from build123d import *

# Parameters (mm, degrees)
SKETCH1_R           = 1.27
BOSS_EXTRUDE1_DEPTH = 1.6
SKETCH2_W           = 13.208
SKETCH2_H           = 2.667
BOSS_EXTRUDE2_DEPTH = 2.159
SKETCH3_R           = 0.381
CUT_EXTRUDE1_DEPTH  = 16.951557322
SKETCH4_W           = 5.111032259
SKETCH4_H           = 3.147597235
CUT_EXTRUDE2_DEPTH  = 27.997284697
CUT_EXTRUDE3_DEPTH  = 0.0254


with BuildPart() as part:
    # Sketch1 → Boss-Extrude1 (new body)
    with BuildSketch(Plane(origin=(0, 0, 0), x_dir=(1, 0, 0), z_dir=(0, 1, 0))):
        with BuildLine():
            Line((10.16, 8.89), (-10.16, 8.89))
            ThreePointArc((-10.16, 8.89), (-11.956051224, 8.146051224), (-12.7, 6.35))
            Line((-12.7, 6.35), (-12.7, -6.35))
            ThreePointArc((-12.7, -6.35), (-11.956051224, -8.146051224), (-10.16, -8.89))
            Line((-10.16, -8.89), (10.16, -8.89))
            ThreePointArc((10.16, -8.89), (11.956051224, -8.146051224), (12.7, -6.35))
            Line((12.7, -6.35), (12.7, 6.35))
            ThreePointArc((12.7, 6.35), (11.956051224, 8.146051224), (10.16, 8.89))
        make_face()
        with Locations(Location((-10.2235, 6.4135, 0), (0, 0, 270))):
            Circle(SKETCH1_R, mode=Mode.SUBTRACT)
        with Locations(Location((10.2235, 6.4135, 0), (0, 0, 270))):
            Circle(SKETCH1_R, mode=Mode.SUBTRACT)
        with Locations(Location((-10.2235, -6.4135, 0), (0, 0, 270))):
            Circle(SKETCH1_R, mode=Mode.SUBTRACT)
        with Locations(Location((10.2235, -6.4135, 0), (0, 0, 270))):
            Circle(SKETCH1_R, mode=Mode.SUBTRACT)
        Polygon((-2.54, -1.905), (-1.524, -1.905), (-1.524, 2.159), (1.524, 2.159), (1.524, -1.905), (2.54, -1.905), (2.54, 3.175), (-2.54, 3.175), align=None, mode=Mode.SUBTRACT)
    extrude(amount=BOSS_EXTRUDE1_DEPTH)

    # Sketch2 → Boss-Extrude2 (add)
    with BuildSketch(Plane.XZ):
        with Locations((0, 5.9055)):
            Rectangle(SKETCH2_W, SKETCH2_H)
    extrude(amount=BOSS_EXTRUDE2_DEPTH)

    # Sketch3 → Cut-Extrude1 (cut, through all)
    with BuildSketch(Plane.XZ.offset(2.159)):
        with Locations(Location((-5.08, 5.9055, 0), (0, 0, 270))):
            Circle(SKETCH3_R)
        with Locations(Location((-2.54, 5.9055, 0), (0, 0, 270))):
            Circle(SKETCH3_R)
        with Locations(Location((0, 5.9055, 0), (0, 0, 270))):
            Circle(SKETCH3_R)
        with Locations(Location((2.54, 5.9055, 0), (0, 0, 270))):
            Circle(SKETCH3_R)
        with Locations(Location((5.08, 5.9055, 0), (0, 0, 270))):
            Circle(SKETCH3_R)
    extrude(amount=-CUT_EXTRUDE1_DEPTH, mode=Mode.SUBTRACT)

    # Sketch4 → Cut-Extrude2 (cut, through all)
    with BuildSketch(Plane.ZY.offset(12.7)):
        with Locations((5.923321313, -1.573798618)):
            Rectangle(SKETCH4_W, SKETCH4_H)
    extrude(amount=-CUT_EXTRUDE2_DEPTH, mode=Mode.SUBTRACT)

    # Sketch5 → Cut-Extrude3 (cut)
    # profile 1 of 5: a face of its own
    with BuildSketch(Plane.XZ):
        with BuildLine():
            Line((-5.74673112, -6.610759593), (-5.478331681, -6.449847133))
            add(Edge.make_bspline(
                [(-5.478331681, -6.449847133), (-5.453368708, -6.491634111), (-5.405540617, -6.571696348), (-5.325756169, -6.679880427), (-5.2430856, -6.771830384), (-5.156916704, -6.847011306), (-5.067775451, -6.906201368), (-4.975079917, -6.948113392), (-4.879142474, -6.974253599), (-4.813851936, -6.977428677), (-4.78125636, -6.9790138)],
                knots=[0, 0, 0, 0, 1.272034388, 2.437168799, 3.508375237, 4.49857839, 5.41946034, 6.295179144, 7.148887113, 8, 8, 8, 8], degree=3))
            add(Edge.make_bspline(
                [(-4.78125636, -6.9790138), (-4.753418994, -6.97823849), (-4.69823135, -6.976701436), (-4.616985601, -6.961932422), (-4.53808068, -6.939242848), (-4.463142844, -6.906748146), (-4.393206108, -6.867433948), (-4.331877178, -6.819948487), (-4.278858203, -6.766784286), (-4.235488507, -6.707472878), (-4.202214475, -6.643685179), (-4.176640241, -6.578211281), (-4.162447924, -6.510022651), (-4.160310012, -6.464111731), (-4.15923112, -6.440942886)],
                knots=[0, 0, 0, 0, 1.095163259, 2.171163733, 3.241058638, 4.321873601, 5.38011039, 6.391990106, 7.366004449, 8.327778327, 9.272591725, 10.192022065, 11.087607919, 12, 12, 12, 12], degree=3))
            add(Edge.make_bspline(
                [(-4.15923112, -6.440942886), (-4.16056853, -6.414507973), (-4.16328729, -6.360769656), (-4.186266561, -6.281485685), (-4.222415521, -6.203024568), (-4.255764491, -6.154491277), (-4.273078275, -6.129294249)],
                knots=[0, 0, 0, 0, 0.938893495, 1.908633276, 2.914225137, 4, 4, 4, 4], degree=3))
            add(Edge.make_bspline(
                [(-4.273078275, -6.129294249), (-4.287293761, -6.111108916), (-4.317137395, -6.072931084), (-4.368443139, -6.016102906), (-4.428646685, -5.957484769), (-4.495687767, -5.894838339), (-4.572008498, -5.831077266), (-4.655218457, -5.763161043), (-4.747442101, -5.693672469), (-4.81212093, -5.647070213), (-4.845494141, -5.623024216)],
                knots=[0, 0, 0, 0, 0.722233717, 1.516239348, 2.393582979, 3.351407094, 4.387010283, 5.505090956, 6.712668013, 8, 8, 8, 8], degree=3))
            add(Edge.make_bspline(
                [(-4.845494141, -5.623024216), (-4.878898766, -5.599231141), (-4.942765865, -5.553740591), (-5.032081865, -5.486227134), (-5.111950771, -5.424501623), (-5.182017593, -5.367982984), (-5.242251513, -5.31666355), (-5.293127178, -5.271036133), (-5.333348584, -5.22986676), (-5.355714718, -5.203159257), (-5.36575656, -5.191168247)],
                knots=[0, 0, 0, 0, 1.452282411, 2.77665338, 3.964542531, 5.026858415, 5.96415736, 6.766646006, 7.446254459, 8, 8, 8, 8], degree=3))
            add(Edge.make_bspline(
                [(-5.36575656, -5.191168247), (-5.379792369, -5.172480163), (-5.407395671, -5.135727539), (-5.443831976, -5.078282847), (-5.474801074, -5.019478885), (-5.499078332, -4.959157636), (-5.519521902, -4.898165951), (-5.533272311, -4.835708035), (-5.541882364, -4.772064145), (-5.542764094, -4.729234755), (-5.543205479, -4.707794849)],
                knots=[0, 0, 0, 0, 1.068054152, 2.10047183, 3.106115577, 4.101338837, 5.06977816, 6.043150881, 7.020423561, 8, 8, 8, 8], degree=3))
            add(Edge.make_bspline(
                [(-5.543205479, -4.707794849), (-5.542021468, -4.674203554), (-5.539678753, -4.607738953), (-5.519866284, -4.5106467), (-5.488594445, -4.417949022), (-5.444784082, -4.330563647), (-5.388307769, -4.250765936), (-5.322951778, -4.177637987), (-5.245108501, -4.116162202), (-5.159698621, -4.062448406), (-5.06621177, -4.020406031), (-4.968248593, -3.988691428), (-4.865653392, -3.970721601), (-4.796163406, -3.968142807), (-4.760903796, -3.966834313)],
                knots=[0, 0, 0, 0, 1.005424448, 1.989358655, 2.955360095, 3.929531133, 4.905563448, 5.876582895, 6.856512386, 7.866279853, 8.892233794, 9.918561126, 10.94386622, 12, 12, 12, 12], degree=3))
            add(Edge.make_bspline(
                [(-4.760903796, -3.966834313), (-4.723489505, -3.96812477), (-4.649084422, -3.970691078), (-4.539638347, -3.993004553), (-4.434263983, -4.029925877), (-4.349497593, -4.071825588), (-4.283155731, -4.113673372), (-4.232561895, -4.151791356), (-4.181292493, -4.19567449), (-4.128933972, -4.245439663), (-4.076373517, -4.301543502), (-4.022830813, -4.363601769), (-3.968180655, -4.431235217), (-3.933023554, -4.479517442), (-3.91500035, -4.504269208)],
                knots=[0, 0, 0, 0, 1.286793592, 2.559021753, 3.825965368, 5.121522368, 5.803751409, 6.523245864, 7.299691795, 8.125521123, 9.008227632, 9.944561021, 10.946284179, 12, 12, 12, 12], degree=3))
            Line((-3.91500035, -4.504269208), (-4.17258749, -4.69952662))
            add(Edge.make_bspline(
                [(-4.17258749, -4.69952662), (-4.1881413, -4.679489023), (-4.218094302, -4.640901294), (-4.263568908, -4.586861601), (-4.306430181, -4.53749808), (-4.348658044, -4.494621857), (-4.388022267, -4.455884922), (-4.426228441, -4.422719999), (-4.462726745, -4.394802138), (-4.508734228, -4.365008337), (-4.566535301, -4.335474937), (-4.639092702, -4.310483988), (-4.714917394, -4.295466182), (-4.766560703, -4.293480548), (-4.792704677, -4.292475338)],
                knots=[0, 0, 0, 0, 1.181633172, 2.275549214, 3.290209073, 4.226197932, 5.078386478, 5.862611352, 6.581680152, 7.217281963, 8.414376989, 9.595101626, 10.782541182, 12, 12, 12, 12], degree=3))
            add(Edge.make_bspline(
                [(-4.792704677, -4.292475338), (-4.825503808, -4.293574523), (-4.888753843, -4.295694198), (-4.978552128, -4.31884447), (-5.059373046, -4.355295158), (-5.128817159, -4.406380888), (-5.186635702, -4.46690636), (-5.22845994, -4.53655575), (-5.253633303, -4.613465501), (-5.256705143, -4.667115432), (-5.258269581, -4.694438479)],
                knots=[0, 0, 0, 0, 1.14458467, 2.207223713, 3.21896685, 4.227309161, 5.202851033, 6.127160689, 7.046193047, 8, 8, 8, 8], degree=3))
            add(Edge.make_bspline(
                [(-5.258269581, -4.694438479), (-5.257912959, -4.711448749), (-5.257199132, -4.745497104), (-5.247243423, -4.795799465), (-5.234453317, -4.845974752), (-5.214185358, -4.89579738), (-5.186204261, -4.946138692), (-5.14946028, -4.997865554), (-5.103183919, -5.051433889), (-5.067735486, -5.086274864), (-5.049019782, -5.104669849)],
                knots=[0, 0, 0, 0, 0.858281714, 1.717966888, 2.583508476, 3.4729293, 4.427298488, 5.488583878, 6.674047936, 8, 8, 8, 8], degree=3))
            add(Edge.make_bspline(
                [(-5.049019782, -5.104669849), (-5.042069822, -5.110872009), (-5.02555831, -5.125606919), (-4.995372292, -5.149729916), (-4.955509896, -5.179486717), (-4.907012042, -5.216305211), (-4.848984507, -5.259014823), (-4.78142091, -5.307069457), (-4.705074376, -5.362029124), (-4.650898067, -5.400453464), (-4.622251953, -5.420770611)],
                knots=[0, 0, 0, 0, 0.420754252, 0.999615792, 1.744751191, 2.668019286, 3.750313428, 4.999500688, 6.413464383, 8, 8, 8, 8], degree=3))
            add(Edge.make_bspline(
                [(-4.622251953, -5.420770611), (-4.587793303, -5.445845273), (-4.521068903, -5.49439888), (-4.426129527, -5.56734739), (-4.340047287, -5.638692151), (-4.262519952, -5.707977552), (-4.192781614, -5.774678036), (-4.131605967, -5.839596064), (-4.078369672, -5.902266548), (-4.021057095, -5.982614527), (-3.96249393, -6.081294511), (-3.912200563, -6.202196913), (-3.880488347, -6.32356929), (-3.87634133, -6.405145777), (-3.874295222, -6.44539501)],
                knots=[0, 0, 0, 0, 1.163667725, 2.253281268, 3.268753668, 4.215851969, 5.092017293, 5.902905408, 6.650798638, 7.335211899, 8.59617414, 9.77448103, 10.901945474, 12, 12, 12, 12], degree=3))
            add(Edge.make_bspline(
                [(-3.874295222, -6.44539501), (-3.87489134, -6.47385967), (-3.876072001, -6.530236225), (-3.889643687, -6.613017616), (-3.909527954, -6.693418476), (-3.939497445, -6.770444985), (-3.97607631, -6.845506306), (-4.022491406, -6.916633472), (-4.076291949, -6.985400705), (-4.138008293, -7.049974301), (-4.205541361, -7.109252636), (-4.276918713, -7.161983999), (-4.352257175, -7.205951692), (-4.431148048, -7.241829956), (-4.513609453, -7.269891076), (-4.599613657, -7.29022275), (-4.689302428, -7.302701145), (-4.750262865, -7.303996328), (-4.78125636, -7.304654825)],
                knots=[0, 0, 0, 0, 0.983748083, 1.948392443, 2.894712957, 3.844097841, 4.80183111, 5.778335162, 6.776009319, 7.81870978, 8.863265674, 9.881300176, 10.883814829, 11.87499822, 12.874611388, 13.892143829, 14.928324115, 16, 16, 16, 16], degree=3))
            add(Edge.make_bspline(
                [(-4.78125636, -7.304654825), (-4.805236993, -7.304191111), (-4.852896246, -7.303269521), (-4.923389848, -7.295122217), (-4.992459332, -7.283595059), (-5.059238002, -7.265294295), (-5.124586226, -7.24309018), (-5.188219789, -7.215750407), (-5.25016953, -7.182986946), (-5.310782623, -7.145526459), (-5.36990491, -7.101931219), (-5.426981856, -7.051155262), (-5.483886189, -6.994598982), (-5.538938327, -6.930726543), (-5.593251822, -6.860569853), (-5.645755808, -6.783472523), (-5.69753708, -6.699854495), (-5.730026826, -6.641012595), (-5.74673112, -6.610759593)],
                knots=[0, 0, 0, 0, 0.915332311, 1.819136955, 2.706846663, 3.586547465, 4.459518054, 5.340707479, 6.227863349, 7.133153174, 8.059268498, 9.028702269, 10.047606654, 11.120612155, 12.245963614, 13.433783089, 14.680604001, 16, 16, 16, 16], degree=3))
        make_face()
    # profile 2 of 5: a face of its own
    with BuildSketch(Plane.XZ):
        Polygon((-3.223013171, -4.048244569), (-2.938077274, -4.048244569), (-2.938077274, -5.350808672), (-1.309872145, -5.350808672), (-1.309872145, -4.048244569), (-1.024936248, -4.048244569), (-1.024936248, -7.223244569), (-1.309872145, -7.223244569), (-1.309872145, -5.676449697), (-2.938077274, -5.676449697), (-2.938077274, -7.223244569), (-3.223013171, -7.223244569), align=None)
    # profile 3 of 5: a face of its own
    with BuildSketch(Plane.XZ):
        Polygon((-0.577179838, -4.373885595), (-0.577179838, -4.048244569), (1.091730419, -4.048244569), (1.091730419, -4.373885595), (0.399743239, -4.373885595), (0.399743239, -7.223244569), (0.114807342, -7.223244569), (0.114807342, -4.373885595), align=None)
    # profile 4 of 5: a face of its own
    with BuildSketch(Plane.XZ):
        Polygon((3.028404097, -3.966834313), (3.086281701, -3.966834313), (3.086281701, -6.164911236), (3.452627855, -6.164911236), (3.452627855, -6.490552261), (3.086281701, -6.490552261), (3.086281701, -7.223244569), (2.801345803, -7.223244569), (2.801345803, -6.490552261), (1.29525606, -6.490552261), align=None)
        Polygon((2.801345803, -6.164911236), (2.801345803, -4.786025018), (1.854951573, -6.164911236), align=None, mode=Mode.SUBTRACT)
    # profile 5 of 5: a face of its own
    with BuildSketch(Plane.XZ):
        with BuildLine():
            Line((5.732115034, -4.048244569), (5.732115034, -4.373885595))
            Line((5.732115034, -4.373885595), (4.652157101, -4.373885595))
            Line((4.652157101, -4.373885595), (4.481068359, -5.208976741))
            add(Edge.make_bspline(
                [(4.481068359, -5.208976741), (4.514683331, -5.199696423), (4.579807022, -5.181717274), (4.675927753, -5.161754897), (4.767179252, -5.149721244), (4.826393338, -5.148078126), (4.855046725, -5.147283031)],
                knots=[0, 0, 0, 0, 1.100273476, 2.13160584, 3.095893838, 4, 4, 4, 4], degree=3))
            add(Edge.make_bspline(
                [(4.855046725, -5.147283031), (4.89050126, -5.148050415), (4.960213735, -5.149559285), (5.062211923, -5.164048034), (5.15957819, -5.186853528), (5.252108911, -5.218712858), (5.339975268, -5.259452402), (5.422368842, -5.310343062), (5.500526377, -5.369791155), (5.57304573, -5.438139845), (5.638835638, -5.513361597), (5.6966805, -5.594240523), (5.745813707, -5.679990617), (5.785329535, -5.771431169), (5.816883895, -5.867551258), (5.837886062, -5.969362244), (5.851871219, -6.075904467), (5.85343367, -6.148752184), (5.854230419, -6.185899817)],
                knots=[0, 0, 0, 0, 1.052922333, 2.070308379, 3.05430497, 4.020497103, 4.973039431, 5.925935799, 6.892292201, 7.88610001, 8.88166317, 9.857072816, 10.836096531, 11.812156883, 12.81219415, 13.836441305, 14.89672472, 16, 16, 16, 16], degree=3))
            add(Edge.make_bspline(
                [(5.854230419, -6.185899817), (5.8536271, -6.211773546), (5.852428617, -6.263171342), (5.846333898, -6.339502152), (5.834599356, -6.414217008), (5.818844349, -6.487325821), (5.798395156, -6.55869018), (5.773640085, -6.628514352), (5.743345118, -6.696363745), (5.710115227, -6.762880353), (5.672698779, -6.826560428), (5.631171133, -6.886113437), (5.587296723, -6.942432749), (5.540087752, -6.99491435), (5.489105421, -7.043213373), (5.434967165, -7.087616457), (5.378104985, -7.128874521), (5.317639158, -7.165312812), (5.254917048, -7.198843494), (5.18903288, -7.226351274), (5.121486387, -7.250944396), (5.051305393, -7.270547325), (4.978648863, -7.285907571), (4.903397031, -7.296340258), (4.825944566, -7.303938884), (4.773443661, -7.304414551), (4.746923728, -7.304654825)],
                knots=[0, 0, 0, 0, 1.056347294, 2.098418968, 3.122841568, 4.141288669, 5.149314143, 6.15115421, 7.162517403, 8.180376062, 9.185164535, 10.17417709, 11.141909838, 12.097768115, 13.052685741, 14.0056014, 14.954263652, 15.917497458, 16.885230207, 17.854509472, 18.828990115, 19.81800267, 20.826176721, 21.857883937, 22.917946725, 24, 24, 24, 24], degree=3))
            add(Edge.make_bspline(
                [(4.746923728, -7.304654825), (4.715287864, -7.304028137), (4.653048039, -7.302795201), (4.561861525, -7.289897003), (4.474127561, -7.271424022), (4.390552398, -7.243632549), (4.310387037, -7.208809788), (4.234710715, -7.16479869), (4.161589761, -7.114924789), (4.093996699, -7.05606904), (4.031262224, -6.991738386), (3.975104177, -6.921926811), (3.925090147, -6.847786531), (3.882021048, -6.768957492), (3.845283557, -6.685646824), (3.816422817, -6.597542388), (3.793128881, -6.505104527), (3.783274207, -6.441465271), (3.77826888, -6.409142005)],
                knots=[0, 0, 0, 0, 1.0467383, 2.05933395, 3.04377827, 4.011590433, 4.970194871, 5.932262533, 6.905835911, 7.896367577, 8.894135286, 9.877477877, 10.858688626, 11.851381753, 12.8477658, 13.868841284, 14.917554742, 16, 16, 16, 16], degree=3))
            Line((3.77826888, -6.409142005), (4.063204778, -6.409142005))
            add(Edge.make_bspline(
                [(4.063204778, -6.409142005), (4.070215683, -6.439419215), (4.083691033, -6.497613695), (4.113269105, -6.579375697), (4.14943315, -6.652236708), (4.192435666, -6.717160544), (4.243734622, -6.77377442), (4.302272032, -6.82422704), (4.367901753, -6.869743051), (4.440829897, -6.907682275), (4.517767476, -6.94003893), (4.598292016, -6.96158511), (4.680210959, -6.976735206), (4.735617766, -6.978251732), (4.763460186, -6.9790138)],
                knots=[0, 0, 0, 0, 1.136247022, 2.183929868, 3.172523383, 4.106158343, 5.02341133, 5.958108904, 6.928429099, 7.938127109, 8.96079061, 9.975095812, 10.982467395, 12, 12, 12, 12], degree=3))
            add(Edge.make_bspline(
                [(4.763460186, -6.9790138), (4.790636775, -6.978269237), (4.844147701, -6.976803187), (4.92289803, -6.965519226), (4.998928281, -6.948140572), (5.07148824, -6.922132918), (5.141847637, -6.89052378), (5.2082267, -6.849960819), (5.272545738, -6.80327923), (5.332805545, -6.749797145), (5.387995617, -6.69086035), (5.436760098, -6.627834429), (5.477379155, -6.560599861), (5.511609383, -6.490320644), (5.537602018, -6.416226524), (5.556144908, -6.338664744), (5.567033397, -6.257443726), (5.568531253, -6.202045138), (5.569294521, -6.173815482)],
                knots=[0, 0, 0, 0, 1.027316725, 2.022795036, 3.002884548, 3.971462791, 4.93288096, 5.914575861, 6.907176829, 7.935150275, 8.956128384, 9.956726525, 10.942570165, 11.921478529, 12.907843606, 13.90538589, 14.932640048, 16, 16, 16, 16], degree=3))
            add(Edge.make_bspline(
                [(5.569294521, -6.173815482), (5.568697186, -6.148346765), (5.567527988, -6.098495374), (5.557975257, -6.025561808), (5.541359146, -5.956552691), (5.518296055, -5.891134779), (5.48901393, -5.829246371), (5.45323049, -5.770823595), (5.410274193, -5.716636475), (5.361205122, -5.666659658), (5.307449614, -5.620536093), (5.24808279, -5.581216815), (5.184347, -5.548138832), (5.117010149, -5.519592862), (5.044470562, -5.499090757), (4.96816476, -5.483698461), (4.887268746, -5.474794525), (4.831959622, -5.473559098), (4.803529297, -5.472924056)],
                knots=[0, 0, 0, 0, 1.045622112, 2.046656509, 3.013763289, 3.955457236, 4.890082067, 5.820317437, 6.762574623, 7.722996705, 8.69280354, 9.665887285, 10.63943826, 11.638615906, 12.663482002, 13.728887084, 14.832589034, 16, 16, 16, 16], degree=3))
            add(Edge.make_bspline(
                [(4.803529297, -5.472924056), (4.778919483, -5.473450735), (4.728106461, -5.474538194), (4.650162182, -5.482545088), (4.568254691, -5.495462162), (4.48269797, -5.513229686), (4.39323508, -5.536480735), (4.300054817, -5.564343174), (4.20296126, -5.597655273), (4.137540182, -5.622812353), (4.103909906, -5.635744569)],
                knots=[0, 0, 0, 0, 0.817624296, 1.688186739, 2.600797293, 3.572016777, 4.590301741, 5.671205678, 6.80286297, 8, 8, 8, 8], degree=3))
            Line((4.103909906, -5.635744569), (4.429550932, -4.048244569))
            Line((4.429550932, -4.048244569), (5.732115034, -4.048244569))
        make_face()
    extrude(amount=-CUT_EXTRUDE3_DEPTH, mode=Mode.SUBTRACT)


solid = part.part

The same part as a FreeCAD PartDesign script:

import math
import FreeCAD as App
import Part
import Sketcher

V = App.Vector
Q = App.Units.Quantity

doc = App.newDocument("Part")
body = doc.addObject("PartDesign::Body", "Body")

# Sketch on XZ plane
sketch1 = body.newObject("Sketcher::SketchObject", "Sketch")
sketch1.AttachmentSupport = (doc.getObject("XZ_Plane"), [""])
sketch1.MapMode = "FlatFace"
sketch1.addGeometry([
    Part.LineSegment(V(10.16, -8.89, 0), V(-10.16, -8.89, 0)),  # 0
    Part.ArcOfCircle(Part.Circle(V(-10.16, -6.35, 0), V(0, 0, 1), 2.54), math.radians(-180), math.radians(-90)),  # 1
    Part.LineSegment(V(-12.7, -6.35, 0), V(-12.7, 6.35, 0)),  # 2
    Part.ArcOfCircle(Part.Circle(V(-10.16, 6.35, 0), V(0, 0, 1), 2.54), math.radians(90), math.radians(180)),  # 3
    Part.LineSegment(V(-10.16, 8.89, 0), V(10.16, 8.89, 0)),  # 4
    Part.ArcOfCircle(Part.Circle(V(10.16, 6.35, 0), V(0, 0, 1), 2.54), math.radians(0), math.radians(90)),  # 5
    Part.LineSegment(V(12.7, 6.35, 0), V(12.7, -6.35, 0)),  # 6
    Part.ArcOfCircle(Part.Circle(V(10.16, -6.35, 0), V(0, 0, 1), 2.54), math.radians(-90), math.radians(0)),  # 7
    Part.Circle(V(-10.2235, 6.4135, 0), V(0, 0, 1), 1.27),  # 8
    Part.Circle(V(10.2235, 6.4135, 0), V(0, 0, 1), 1.27),  # 9
    Part.Circle(V(-10.2235, -6.4135, 0), V(0, 0, 1), 1.27),  # 10
    Part.LineSegment(V(-1.524, 1.905, 0), V(-2.54, 1.905, 0)),  # 11
    Part.LineSegment(V(-2.54, 1.905, 0), V(-2.54, -3.175, 0)),  # 12
    Part.LineSegment(V(-2.54, -3.175, 0), V(2.54, -3.175, 0)),  # 13
    Part.LineSegment(V(2.54, -3.175, 0), V(2.54, 1.905, 0)),  # 14
    Part.LineSegment(V(2.54, 1.905, 0), V(1.524, 1.905, 0)),  # 15
    Part.LineSegment(V(1.524, 1.905, 0), V(1.524, -2.159, 0)),  # 16
    Part.LineSegment(V(1.524, -2.159, 0), V(-1.524, -2.159, 0)),  # 17
    Part.LineSegment(V(-1.524, -2.159, 0), V(-1.524, 1.905, 0)),  # 18
    Part.Circle(V(10.2235, -6.4135, 0), V(0, 0, 1), 1.27),  # 19
], False)
sketch1.addConstraint([
    Sketcher.Constraint("Tangent", 0, 2, 1, 2),
    Sketcher.Constraint("Tangent", 1, 1, 2, 1),
    Sketcher.Constraint("Tangent", 2, 2, 3, 2),
    Sketcher.Constraint("Tangent", 3, 1, 4, 1),
    Sketcher.Constraint("Tangent", 4, 2, 5, 2),
    Sketcher.Constraint("Tangent", 5, 1, 6, 1),
    Sketcher.Constraint("Tangent", 6, 2, 7, 2),
    Sketcher.Constraint("Tangent", 7, 1, 0, 1),
    Sketcher.Constraint("Coincident", 11, 2, 12, 1),
    Sketcher.Constraint("Coincident", 12, 2, 13, 1),
    Sketcher.Constraint("Coincident", 13, 2, 14, 1),
    Sketcher.Constraint("Coincident", 14, 2, 15, 1),
    Sketcher.Constraint("Coincident", 15, 2, 16, 1),
    Sketcher.Constraint("Coincident", 16, 2, 17, 1),
    Sketcher.Constraint("Coincident", 17, 2, 18, 1),
    Sketcher.Constraint("Coincident", 18, 2, 11, 1),
    Sketcher.Constraint("Horizontal", 0),
    Sketcher.Constraint("Vertical", 2),
    Sketcher.Constraint("Horizontal", 4),
    Sketcher.Constraint("Vertical", 6),
    Sketcher.Constraint("Horizontal", 11),
    Sketcher.Constraint("Vertical", 12),
    Sketcher.Constraint("Horizontal", 13),
    Sketcher.Constraint("Vertical", 14),
    Sketcher.Constraint("Horizontal", 15),
    Sketcher.Constraint("Vertical", 16),
    Sketcher.Constraint("Horizontal", 17),
    Sketcher.Constraint("Vertical", 18),
    Sketcher.Constraint("Equal", 1, 3),
    Sketcher.Constraint("Equal", 3, 5),
    Sketcher.Constraint("Equal", 5, 7),
    Sketcher.Constraint("Equal", 8, 9),
    Sketcher.Constraint("Equal", 9, 10),
    Sketcher.Constraint("Equal", 10, 19),
    Sketcher.Constraint("Symmetric", 1, 3, 5, 3, -1, 1),
    Sketcher.Constraint("Symmetric", 9, 3, 10, 3, -1, 1),
    Sketcher.Constraint("Symmetric", 8, 3, 19, 3, -1, 1),
    Sketcher.Constraint("Symmetric", 8, 3, 9, 3, -2),
    Sketcher.Constraint("Symmetric", 11, 2, 14, 2, -2),
    Sketcher.Constraint("Equal", 11, 15),
    Sketcher.Constraint("Equal", 13, 12),
    Sketcher.Constraint("Diameter", 8, Q("0.1 in")),
    Sketcher.Constraint("Radius", 1, Q("0.1 in")),
    Sketcher.Constraint("DistanceX", 0, 2, 0, 1, Q("0.8 in")),
    Sketcher.Constraint("DistanceX", 13, 1, 13, 2, Q("0.2 in")),
    Sketcher.Constraint("DistanceY", 2, 1, 2, 2, Q("0.5 in")),
    Sketcher.Constraint("DistanceX", 11, 2, 11, 1, Q("0.04 in")),
    Sketcher.Constraint("DistanceY", 16, 2, 16, 1, Q("0.16 in")),
    Sketcher.Constraint("DistanceY", -1, 1, 11, 2, Q("0.075 in")),
    Sketcher.Constraint("DistanceX", 8, 3, 9, 3, Q("0.805 in")),
    Sketcher.Constraint("DistanceY", 10, 3, 8, 3, Q("0.505 in")),
])
pad1 = body.newObject("PartDesign::Pad", "Pad")
pad1.Profile = sketch1
pad1.Length = 1.6
pad1.Reversed = True

# Sketch on XZ plane
sketch2 = body.newObject("Sketcher::SketchObject", "Sketch001")
sketch2.AttachmentSupport = (doc.getObject("XZ_Plane"), [""])
sketch2.MapMode = "FlatFace"
sketch2.addGeometry([
    Part.LineSegment(V(-6.604, 7.239, 0), V(-6.604, 4.572, 0)),
    Part.LineSegment(V(-6.604, 4.572, 0), V(6.604, 4.572, 0)),
    Part.LineSegment(V(6.604, 4.572, 0), V(6.604, 7.239, 0)),
    Part.LineSegment(V(6.604, 7.239, 0), V(-6.604, 7.239, 0)),
], False)
sketch2.addConstraint([
    Sketcher.Constraint("Coincident", 0, 2, 1, 1),
    Sketcher.Constraint("Coincident", 1, 2, 2, 1),
    Sketcher.Constraint("Coincident", 2, 2, 3, 1),
    Sketcher.Constraint("Coincident", 3, 2, 0, 1),
    Sketcher.Constraint("Vertical", 0),
    Sketcher.Constraint("Horizontal", 1),
    Sketcher.Constraint("Vertical", 2),
    Sketcher.Constraint("Horizontal", 3),
    Sketcher.Constraint("DistanceX", 1, 1, 1, 2, Q("0.52 in")),
    Sketcher.Constraint("DistanceY", 0, 2, 0, 1, Q("0.105 in")),
    Sketcher.Constraint("DistanceX", 0, 2, -1, 1, Q("0.26 in")),
    Sketcher.Constraint("DistanceY", -1, 1, 0, 2, Q("0.18 in")),
])
pad2 = body.newObject("PartDesign::Pad", "Pad001")
pad2.Profile = sketch2
pad2.Length = Q("0.085 in")

# Sketch on XZ plane
sketch3 = body.newObject("Sketcher::SketchObject", "Sketch002")
sketch3.AttachmentSupport = (doc.getObject("XZ_Plane"), [""])
sketch3.MapMode = "FlatFace"
sketch3.AttachmentOffset = App.Placement(V(0, 0, 0.085 * 25.4), App.Rotation())
sketch3.addGeometry([
    Part.Circle(V(-5.08, 5.9055, 0), V(0, 0, 1), 0.381),  # 0
    Part.Circle(V(-2.54, 5.9055, 0), V(0, 0, 1), 0.381),  # 1
    Part.Circle(V(0, 5.9055, 0), V(0, 0, 1), 0.381),  # 2
    Part.Circle(V(2.54, 5.9055, 0), V(0, 0, 1), 0.381),  # 3
    Part.Circle(V(5.08, 5.9055, 0), V(0, 0, 1), 0.381),  # 4
], False)
sketch3.addConstraint([
    Sketcher.Constraint("Equal", 0, 1),
    Sketcher.Constraint("Equal", 1, 2),
    Sketcher.Constraint("Equal", 2, 3),
    Sketcher.Constraint("Equal", 3, 4),
    Sketcher.Constraint("Symmetric", 1, 3, 3, 3, -2),
    Sketcher.Constraint("Symmetric", 0, 3, 4, 3, -2),
    Sketcher.Constraint("PointOnObject", 2, 3, -2),
    Sketcher.Constraint("Horizontal", 0, 3, 1, 3),
    Sketcher.Constraint("Horizontal", 1, 3, 2, 3),
    Sketcher.Constraint("Diameter", 0, Q("0.03 in")),
    Sketcher.Constraint("DistanceX", 0, 3, -1, 1, Q("0.2 in")),
    Sketcher.Constraint("DistanceX", 1, 3, -1, 1, Q("0.1 in")),
    Sketcher.Constraint("DistanceY", -1, 1, 0, 3, Q("0.2325 in")),
])
pocket1 = body.newObject("PartDesign::Pocket", "Pocket")
pocket1.Profile = sketch3
pocket1.Type = "ThroughAll"

# Sketch on YZ plane
sketch4 = body.newObject("Sketcher::SketchObject", "Sketch003")
sketch4.AttachmentSupport = (doc.getObject("YZ_Plane"), [""])
sketch4.MapMode = "FlatFace"
sketch4.AttachmentOffset = App.Placement(V(0, 0, -0.5 * 25.4), App.Rotation())
sketch4.addGeometry([
    Part.LineSegment(V(0, 3.367805, 0), V(-3.147597, 3.367805, 0)),
    Part.LineSegment(V(-3.147597, 3.367805, 0), V(-3.147597, 8.478837, 0)),
    Part.LineSegment(V(-3.147597, 8.478837, 0), V(0, 8.478837, 0)),
    Part.LineSegment(V(0, 8.478837, 0), V(0, 3.367805, 0)),
], False)
sketch4.addConstraint([
    Sketcher.Constraint("Coincident", 0, 2, 1, 1),
    Sketcher.Constraint("Coincident", 1, 2, 2, 1),
    Sketcher.Constraint("Coincident", 2, 2, 3, 1),
    Sketcher.Constraint("Coincident", 3, 2, 0, 1),
    Sketcher.Constraint("Horizontal", 0),
    Sketcher.Constraint("Vertical", 1),
    Sketcher.Constraint("Horizontal", 2),
    Sketcher.Constraint("Vertical", 3),
    Sketcher.Constraint("PointOnObject", 2, 2, -2),
    Sketcher.Constraint("DistanceX", 0, 2, 0, 1, Q("3.147597 mm")),
    Sketcher.Constraint("DistanceY", 1, 1, 1, 2, Q("5.111032 mm")),
    Sketcher.Constraint("DistanceY", -1, 1, 0, 2, Q("3.367805 mm")),
])
pocket2 = body.newObject("PartDesign::Pocket", "Pocket001")
pocket2.Profile = sketch4
pocket2.Type = "ThroughAll"
pocket2.Reversed = True

# Sketch on XZ plane
sketch5 = body.newObject("Sketcher::SketchObject", "Sketch004")
sketch5.AttachmentSupport = (doc.getObject("XZ_Plane"), [""])
sketch5.MapMode = "FlatFace"
sketch5.addGeometry([
    Part.LineSegment(V(-5.478332, -6.449847, 0), V(-5.746731, -6.61076, 0)),  # 0
    Part.BSplineCurve([V(-4.781256, -7.304655, 0), V(-4.805237, -7.304191, 0), V(-4.852896, -7.30327, 0), V(-4.92339, -7.295122, 0), V(-4.992459, -7.283595, 0), V(-5.059238, -7.265294, 0), V(-5.124586, -7.24309, 0), V(-5.18822, -7.21575, 0), V(-5.25017, -7.182987, 0), V(-5.310783, -7.145526, 0), V(-5.369905, -7.101931, 0), V(-5.426982, -7.051155, 0), V(-5.483886, -6.994599, 0), V(-5.538938, -6.930727, 0), V(-5.593252, -6.86057, 0), V(-5.645756, -6.783473, 0), V(-5.697537, -6.699854, 0), V(-5.730027, -6.641013, 0), V(-5.746731, -6.61076, 0)], [4, 1, 1, 1, 1, 1, 1, 1, 1, 1, 1, 1, 1, 1, 1, 1, 4], [0, 0.915332311, 1.819136955, 2.706846663, 3.586547465, 4.459518054, 5.340707479, 6.227863349, 7.133153174, 8.059268498, 9.028702269, 10.047606654, 11.120612155, 12.245963614, 13.433783089, 14.680604001, 16], False, 3, [1, 1, 1, 1, 1, 1, 1, 1, 1, 1, 1, 1, 1, 1, 1, 1, 1, 1, 1], False),  # 1
    Part.BSplineCurve([V(-3.874295, -6.445395, 0), V(-3.874891, -6.47386, 0), V(-3.876072, -6.530236, 0), V(-3.889644, -6.613018, 0), V(-3.909528, -6.693418, 0), V(-3.939497, -6.770445, 0), V(-3.976076, -6.845506, 0), V(-4.022491, -6.916633, 0), V(-4.076292, -6.985401, 0), V(-4.138008, -7.049974, 0), V(-4.205541, -7.109253, 0), V(-4.276919, -7.161984, 0), V(-4.352257, -7.205952, 0), V(-4.431148, -7.24183, 0), V(-4.513609, -7.269891, 0), V(-4.599614, -7.290223, 0), V(-4.689302, -7.302701, 0), V(-4.750263, -7.303996, 0), V(-4.781256, -7.304655, 0)], [4, 1, 1, 1, 1, 1, 1, 1, 1, 1, 1, 1, 1, 1, 1, 1, 4], [0, 0.983748083, 1.948392443, 2.894712957, 3.844097841, 4.80183111, 5.778335162, 6.776009319, 7.81870978, 8.863265674, 9.881300176, 10.883814829, 11.87499822, 12.874611388, 13.892143829, 14.928324115, 16], False, 3, [1, 1, 1, 1, 1, 1, 1, 1, 1, 1, 1, 1, 1, 1, 1, 1, 1, 1, 1], False),  # 2
    Part.BSplineCurve([V(-4.622252, -5.420771, 0), V(-4.587793, -5.445845, 0), V(-4.521069, -5.494399, 0), V(-4.42613, -5.567347, 0), V(-4.340047, -5.638692, 0), V(-4.26252, -5.707978, 0), V(-4.192782, -5.774678, 0), V(-4.131606, -5.839596, 0), V(-4.07837, -5.902267, 0), V(-4.021057, -5.982615, 0), V(-3.962494, -6.081295, 0), V(-3.912201, -6.202197, 0), V(-3.880488, -6.323569, 0), V(-3.876341, -6.405146, 0), V(-3.874295, -6.445395, 0)], [4, 1, 1, 1, 1, 1, 1, 1, 1, 1, 1, 1, 4], [0, 1.163667725, 2.253281268, 3.268753668, 4.215851969, 5.092017293, 5.902905408, 6.650798638, 7.335211899, 8.59617414, 9.77448103, 10.901945474, 12], False, 3, [1, 1, 1, 1, 1, 1, 1, 1, 1, 1, 1, 1, 1, 1, 1], False),  # 3
    Part.BSplineCurve([V(-5.04902, -5.10467, 0), V(-5.04207, -5.110872, 0), V(-5.025558, -5.125607, 0), V(-4.995372, -5.14973, 0), V(-4.95551, -5.179487, 0), V(-4.907012, -5.216305, 0), V(-4.848985, -5.259015, 0), V(-4.781421, -5.307069, 0), V(-4.705074, -5.362029, 0), V(-4.650898, -5.400453, 0), V(-4.622252, -5.420771, 0)], [4, 1, 1, 1, 1, 1, 1, 1, 4], [0, 0.420754252, 0.999615792, 1.744751191, 2.668019286, 3.750313428, 4.999500688, 6.413464383, 8], False, 3, [1, 1, 1, 1, 1, 1, 1, 1, 1, 1, 1], False),  # 4
    Part.BSplineCurve([V(-5.25827, -4.694438, 0), V(-5.257913, -4.711449, 0), V(-5.257199, -4.745497, 0), V(-5.247243, -4.795799, 0), V(-5.234453, -4.845975, 0), V(-5.214185, -4.895797, 0), V(-5.186204, -4.946139, 0), V(-5.14946, -4.997866, 0), V(-5.103184, -5.051434, 0), V(-5.067735, -5.086275, 0), V(-5.04902, -5.10467, 0)], [4, 1, 1, 1, 1, 1, 1, 1, 4], [0, 0.858281714, 1.717966888, 2.583508476, 3.4729293, 4.427298488, 5.488583878, 6.674047936, 8], False, 3, [1, 1, 1, 1, 1, 1, 1, 1, 1, 1, 1], False),  # 5
    Part.BSplineCurve([V(-4.792705, -4.292475, 0), V(-4.825504, -4.293575, 0), V(-4.888754, -4.295694, 0), V(-4.978552, -4.318844, 0), V(-5.059373, -4.355295, 0), V(-5.128817, -4.406381, 0), V(-5.186636, -4.466906, 0), V(-5.22846, -4.536556, 0), V(-5.253633, -4.613466, 0), V(-5.256705, -4.667115, 0), V(-5.25827, -4.694438, 0)], [4, 1, 1, 1, 1, 1, 1, 1, 4], [0, 1.14458467, 2.207223713, 3.21896685, 4.227309161, 5.202851033, 6.127160689, 7.046193047, 8], False, 3, [1, 1, 1, 1, 1, 1, 1, 1, 1, 1, 1], False),  # 6
    Part.BSplineCurve([V(-4.172587, -4.699527, 0), V(-4.188141, -4.679489, 0), V(-4.218094, -4.640901, 0), V(-4.263569, -4.586862, 0), V(-4.30643, -4.537498, 0), V(-4.348658, -4.494622, 0), V(-4.388022, -4.455885, 0), V(-4.426228, -4.42272, 0), V(-4.462727, -4.394802, 0), V(-4.508734, -4.365008, 0), V(-4.566535, -4.335475, 0), V(-4.639093, -4.310484, 0), V(-4.714917, -4.295466, 0), V(-4.766561, -4.293481, 0), V(-4.792705, -4.292475, 0)], [4, 1, 1, 1, 1, 1, 1, 1, 1, 1, 1, 1, 4], [0, 1.181633172, 2.275549214, 3.290209073, 4.226197932, 5.078386478, 5.862611352, 6.581680152, 7.217281963, 8.414376989, 9.595101626, 10.782541182, 12], False, 3, [1, 1, 1, 1, 1, 1, 1, 1, 1, 1, 1, 1, 1, 1, 1], False),  # 7
    Part.LineSegment(V(-4.172587, -4.699527, 0), V(-3.915, -4.504269, 0)),  # 8
    Part.BSplineCurve([V(-4.760904, -3.966834, 0), V(-4.72349, -3.968125, 0), V(-4.649084, -3.970691, 0), V(-4.539638, -3.993005, 0), V(-4.434264, -4.029926, 0), V(-4.349498, -4.071826, 0), V(-4.283156, -4.113673, 0), V(-4.232562, -4.151791, 0), V(-4.181292, -4.195674, 0), V(-4.128934, -4.24544, 0), V(-4.076374, -4.301544, 0), V(-4.022831, -4.363602, 0), V(-3.968181, -4.431235, 0), V(-3.933024, -4.479517, 0), V(-3.915, -4.504269, 0)], [4, 1, 1, 1, 1, 1, 1, 1, 1, 1, 1, 1, 4], [0, 1.286793592, 2.559021753, 3.825965368, 5.121522368, 5.803751409, 6.523245864, 7.299691795, 8.125521123, 9.008227632, 9.944561021, 10.946284179, 12], False, 3, [1, 1, 1, 1, 1, 1, 1, 1, 1, 1, 1, 1, 1, 1, 1], False),  # 9
    Part.BSplineCurve([V(-5.543205, -4.707795, 0), V(-5.542021, -4.674204, 0), V(-5.539679, -4.607739, 0), V(-5.519866, -4.510647, 0), V(-5.488594, -4.417949, 0), V(-5.444784, -4.330564, 0), V(-5.388308, -4.250766, 0), V(-5.322952, -4.177638, 0), V(-5.245109, -4.116162, 0), V(-5.159699, -4.062448, 0), V(-5.066212, -4.020406, 0), V(-4.968249, -3.988691, 0), V(-4.865653, -3.970722, 0), V(-4.796163, -3.968143, 0), V(-4.760904, -3.966834, 0)], [4, 1, 1, 1, 1, 1, 1, 1, 1, 1, 1, 1, 4], [0, 1.005424448, 1.989358655, 2.955360095, 3.929531133, 4.905563448, 5.876582895, 6.856512386, 7.866279853, 8.892233794, 9.918561126, 10.94386622, 12], False, 3, [1, 1, 1, 1, 1, 1, 1, 1, 1, 1, 1, 1, 1, 1, 1], False),  # 10
    Part.BSplineCurve([V(-5.365757, -5.191168, 0), V(-5.379792, -5.17248, 0), V(-5.407396, -5.135728, 0), V(-5.443832, -5.078283, 0), V(-5.474801, -5.019479, 0), V(-5.499078, -4.959158, 0), V(-5.519522, -4.898166, 0), V(-5.533272, -4.835708, 0), V(-5.541882, -4.772064, 0), V(-5.542764, -4.729235, 0), V(-5.543205, -4.707795, 0)], [4, 1, 1, 1, 1, 1, 1, 1, 4], [0, 1.068054152, 2.10047183, 3.106115577, 4.101338837, 5.06977816, 6.043150881, 7.020423561, 8], False, 3, [1, 1, 1, 1, 1, 1, 1, 1, 1, 1, 1], False),  # 11
    Part.BSplineCurve([V(-4.845494, -5.623024, 0), V(-4.878899, -5.599231, 0), V(-4.942766, -5.553741, 0), V(-5.032082, -5.486227, 0), V(-5.111951, -5.424502, 0), V(-5.182018, -5.367983, 0), V(-5.242252, -5.316664, 0), V(-5.293127, -5.271036, 0), V(-5.333349, -5.229867, 0), V(-5.355715, -5.203159, 0), V(-5.365757, -5.191168, 0)], [4, 1, 1, 1, 1, 1, 1, 1, 4], [0, 1.452282411, 2.77665338, 3.964542531, 5.026858415, 5.96415736, 6.766646006, 7.446254459, 8], False, 3, [1, 1, 1, 1, 1, 1, 1, 1, 1, 1, 1], False),  # 12
    Part.BSplineCurve([V(-4.273078, -6.129294, 0), V(-4.287294, -6.111109, 0), V(-4.317137, -6.072931, 0), V(-4.368443, -6.016103, 0), V(-4.428647, -5.957485, 0), V(-4.495688, -5.894838, 0), V(-4.572008, -5.831077, 0), V(-4.655218, -5.763161, 0), V(-4.747442, -5.693672, 0), V(-4.812121, -5.64707, 0), V(-4.845494, -5.623024, 0)], [4, 1, 1, 1, 1, 1, 1, 1, 4], [0, 0.722233717, 1.516239348, 2.393582979, 3.351407094, 4.387010283, 5.505090956, 6.712668013, 8], False, 3, [1, 1, 1, 1, 1, 1, 1, 1, 1, 1, 1], False),  # 13
    Part.BSplineCurve([V(-4.159231, -6.440943, 0), V(-4.160569, -6.414508, 0), V(-4.163287, -6.36077, 0), V(-4.186267, -6.281486, 0), V(-4.222416, -6.203025, 0), V(-4.255764, -6.154491, 0), V(-4.273078, -6.129294, 0)], [4, 1, 1, 1, 4], [0, 0.938893495, 1.908633276, 2.914225137, 4], False, 3, [1, 1, 1, 1, 1, 1, 1], False),  # 14
    Part.BSplineCurve([V(-4.781256, -6.979014, 0), V(-4.753419, -6.978238, 0), V(-4.698231, -6.976701, 0), V(-4.616986, -6.961932, 0), V(-4.538081, -6.939243, 0), V(-4.463143, -6.906748, 0), V(-4.393206, -6.867434, 0), V(-4.331877, -6.819948, 0), V(-4.278858, -6.766784, 0), V(-4.235489, -6.707473, 0), V(-4.202214, -6.643685, 0), V(-4.17664, -6.578211, 0), V(-4.162448, -6.510023, 0), V(-4.16031, -6.464112, 0), V(-4.159231, -6.440943, 0)], [4, 1, 1, 1, 1, 1, 1, 1, 1, 1, 1, 1, 4], [0, 1.095163259, 2.171163733, 3.241058638, 4.321873601, 5.38011039, 6.391990106, 7.366004449, 8.327778327, 9.272591725, 10.192022065, 11.087607919, 12], False, 3, [1, 1, 1, 1, 1, 1, 1, 1, 1, 1, 1, 1, 1, 1, 1], False),  # 15
    Part.BSplineCurve([V(-5.478332, -6.449847, 0), V(-5.453369, -6.491634, 0), V(-5.405541, -6.571696, 0), V(-5.325756, -6.67988, 0), V(-5.243086, -6.77183, 0), V(-5.156917, -6.847011, 0), V(-5.067775, -6.906201, 0), V(-4.97508, -6.948113, 0), V(-4.879142, -6.974254, 0), V(-4.813852, -6.977429, 0), V(-4.781256, -6.979014, 0)], [4, 1, 1, 1, 1, 1, 1, 1, 4], [0, 1.272034388, 2.437168799, 3.508375237, 4.49857839, 5.41946034, 6.295179144, 7.148887113, 8], False, 3, [1, 1, 1, 1, 1, 1, 1, 1, 1, 1, 1], False),  # 16
    Part.LineSegment(V(-2.938077, -4.048245, 0), V(-3.223013, -4.048245, 0)),  # 17
    Part.LineSegment(V(-3.223013, -4.048245, 0), V(-3.223013, -7.223245, 0)),  # 18
    Part.LineSegment(V(-3.223013, -7.223245, 0), V(-2.938077, -7.223245, 0)),  # 19
    Part.LineSegment(V(-2.938077, -7.223245, 0), V(-2.938077, -5.67645, 0)),  # 20
    Part.LineSegment(V(-2.938077, -5.67645, 0), V(-1.309872, -5.67645, 0)),  # 21
    Part.LineSegment(V(-1.309872, -5.67645, 0), V(-1.309872, -7.223245, 0)),  # 22
    Part.LineSegment(V(-1.309872, -7.223245, 0), V(-1.024936, -7.223245, 0)),  # 23
    Part.LineSegment(V(-1.024936, -7.223245, 0), V(-1.024936, -4.048245, 0)),  # 24
    Part.LineSegment(V(-1.024936, -4.048245, 0), V(-1.309872, -4.048245, 0)),  # 25
    Part.LineSegment(V(-1.309872, -4.048245, 0), V(-1.309872, -5.350809, 0)),  # 26
    Part.LineSegment(V(-1.309872, -5.350809, 0), V(-2.938077, -5.350809, 0)),  # 27
    Part.LineSegment(V(-2.938077, -5.350809, 0), V(-2.938077, -4.048245, 0)),  # 28
    Part.LineSegment(V(-0.57718, -4.048245, 0), V(-0.57718, -4.373886, 0)),  # 29
    Part.LineSegment(V(-0.57718, -4.373886, 0), V(0.114807, -4.373886, 0)),  # 30
    Part.LineSegment(V(0.114807, -4.373886, 0), V(0.114807, -7.223245, 0)),  # 31
    Part.LineSegment(V(0.114807, -7.223245, 0), V(0.399743, -7.223245, 0)),  # 32
    Part.LineSegment(V(0.399743, -7.223245, 0), V(0.399743, -4.373886, 0)),  # 33
    Part.LineSegment(V(0.399743, -4.373886, 0), V(1.09173, -4.373886, 0)),  # 34
    Part.LineSegment(V(1.09173, -4.373886, 0), V(1.09173, -4.048245, 0)),  # 35
    Part.LineSegment(V(1.09173, -4.048245, 0), V(-0.57718, -4.048245, 0)),  # 36
    Part.LineSegment(V(3.086282, -3.966834, 0), V(3.028404, -3.966834, 0)),  # 37
    Part.LineSegment(V(3.028404, -3.966834, 0), V(1.295256, -6.490552, 0)),  # 38
    Part.LineSegment(V(1.295256, -6.490552, 0), V(2.801346, -6.490552, 0)),  # 39
    Part.LineSegment(V(2.801346, -6.490552, 0), V(2.801346, -7.223245, 0)),  # 40
    Part.LineSegment(V(2.801346, -7.223245, 0), V(3.086282, -7.223245, 0)),  # 41
    Part.LineSegment(V(3.086282, -7.223245, 0), V(3.086282, -6.490552, 0)),  # 42
    Part.LineSegment(V(3.086282, -6.490552, 0), V(3.452628, -6.490552, 0)),  # 43
    Part.LineSegment(V(3.452628, -6.490552, 0), V(3.452628, -6.164911, 0)),  # 44
    Part.LineSegment(V(3.452628, -6.164911, 0), V(3.086282, -6.164911, 0)),  # 45
    Part.LineSegment(V(3.086282, -6.164911, 0), V(3.086282, -3.966834, 0)),  # 46
    Part.LineSegment(V(2.801346, -6.164911, 0), V(1.854952, -6.164911, 0)),  # 47
    Part.LineSegment(V(1.854952, -6.164911, 0), V(2.801346, -4.786025, 0)),  # 48
    Part.LineSegment(V(2.801346, -4.786025, 0), V(2.801346, -6.164911, 0)),  # 49
    Part.LineSegment(V(5.732115, -4.373886, 0), V(5.732115, -4.048245, 0)),  # 50
    Part.LineSegment(V(5.732115, -4.048245, 0), V(4.429551, -4.048245, 0)),  # 51
    Part.LineSegment(V(4.429551, -4.048245, 0), V(4.10391, -5.635745, 0)),  # 52
    Part.BSplineCurve([V(4.803529, -5.472924, 0), V(4.778919, -5.473451, 0), V(4.728106, -5.474538, 0), V(4.650162, -5.482545, 0), V(4.568255, -5.495462, 0), V(4.482698, -5.51323, 0), V(4.393235, -5.536481, 0), V(4.300055, -5.564343, 0), V(4.202961, -5.597655, 0), V(4.13754, -5.622812, 0), V(4.10391, -5.635745, 0)], [4, 1, 1, 1, 1, 1, 1, 1, 4], [0, 0.817624296, 1.688186739, 2.600797293, 3.572016777, 4.590301741, 5.671205678, 6.80286297, 8], False, 3, [1, 1, 1, 1, 1, 1, 1, 1, 1, 1, 1], False),  # 53
    Part.BSplineCurve([V(5.569295, -6.173815, 0), V(5.568697, -6.148347, 0), V(5.567528, -6.098495, 0), V(5.557975, -6.025562, 0), V(5.541359, -5.956553, 0), V(5.518296, -5.891135, 0), V(5.489014, -5.829246, 0), V(5.45323, -5.770824, 0), V(5.410274, -5.716636, 0), V(5.361205, -5.66666, 0), V(5.30745, -5.620536, 0), V(5.248083, -5.581217, 0), V(5.184347, -5.548139, 0), V(5.11701, -5.519593, 0), V(5.044471, -5.499091, 0), V(4.968165, -5.483698, 0), V(4.887269, -5.474795, 0), V(4.83196, -5.473559, 0), V(4.803529, -5.472924, 0)], [4, 1, 1, 1, 1, 1, 1, 1, 1, 1, 1, 1, 1, 1, 1, 1, 4], [0, 1.045622112, 2.046656509, 3.013763289, 3.955457236, 4.890082067, 5.820317437, 6.762574623, 7.722996705, 8.69280354, 9.665887285, 10.63943826, 11.638615906, 12.663482002, 13.728887084, 14.832589034, 16], False, 3, [1, 1, 1, 1, 1, 1, 1, 1, 1, 1, 1, 1, 1, 1, 1, 1, 1, 1, 1], False),  # 54
    Part.BSplineCurve([V(4.76346, -6.979014, 0), V(4.790637, -6.978269, 0), V(4.844148, -6.976803, 0), V(4.922898, -6.965519, 0), V(4.998928, -6.948141, 0), V(5.071488, -6.922133, 0), V(5.141848, -6.890524, 0), V(5.208227, -6.849961, 0), V(5.272546, -6.803279, 0), V(5.332806, -6.749797, 0), V(5.387996, -6.69086, 0), V(5.43676, -6.627834, 0), V(5.477379, -6.5606, 0), V(5.511609, -6.490321, 0), V(5.537602, -6.416227, 0), V(5.556145, -6.338665, 0), V(5.567033, -6.257444, 0), V(5.568531, -6.202045, 0), V(5.569295, -6.173815, 0)], [4, 1, 1, 1, 1, 1, 1, 1, 1, 1, 1, 1, 1, 1, 1, 1, 4], [0, 1.027316725, 2.022795036, 3.002884548, 3.971462791, 4.93288096, 5.914575861, 6.907176829, 7.935150275, 8.956128384, 9.956726525, 10.942570165, 11.921478529, 12.907843606, 13.90538589, 14.932640048, 16], False, 3, [1, 1, 1, 1, 1, 1, 1, 1, 1, 1, 1, 1, 1, 1, 1, 1, 1, 1, 1], False),  # 55
    Part.BSplineCurve([V(4.063205, -6.409142, 0), V(4.070216, -6.439419, 0), V(4.083691, -6.497614, 0), V(4.113269, -6.579376, 0), V(4.149433, -6.652237, 0), V(4.192436, -6.717161, 0), V(4.243735, -6.773774, 0), V(4.302272, -6.824227, 0), V(4.367902, -6.869743, 0), V(4.44083, -6.907682, 0), V(4.517767, -6.940039, 0), V(4.598292, -6.961585, 0), V(4.680211, -6.976735, 0), V(4.735618, -6.978252, 0), V(4.76346, -6.979014, 0)], [4, 1, 1, 1, 1, 1, 1, 1, 1, 1, 1, 1, 4], [0, 1.136247022, 2.183929868, 3.172523383, 4.106158343, 5.02341133, 5.958108904, 6.928429099, 7.938127109, 8.96079061, 9.975095812, 10.982467395, 12], False, 3, [1, 1, 1, 1, 1, 1, 1, 1, 1, 1, 1, 1, 1, 1, 1], False),  # 56
    Part.LineSegment(V(4.063205, -6.409142, 0), V(3.778269, -6.409142, 0)),  # 57
    Part.BSplineCurve([V(4.746924, -7.304655, 0), V(4.715288, -7.304028, 0), V(4.653048, -7.302795, 0), V(4.561862, -7.289897, 0), V(4.474128, -7.271424, 0), V(4.390552, -7.243633, 0), V(4.310387, -7.20881, 0), V(4.234711, -7.164799, 0), V(4.16159, -7.114925, 0), V(4.093997, -7.056069, 0), V(4.031262, -6.991738, 0), V(3.975104, -6.921927, 0), V(3.92509, -6.847787, 0), V(3.882021, -6.768957, 0), V(3.845284, -6.685647, 0), V(3.816423, -6.597542, 0), V(3.793129, -6.505105, 0), V(3.783274, -6.441465, 0), V(3.778269, -6.409142, 0)], [4, 1, 1, 1, 1, 1, 1, 1, 1, 1, 1, 1, 1, 1, 1, 1, 4], [0, 1.0467383, 2.05933395, 3.04377827, 4.011590433, 4.970194871, 5.932262533, 6.905835911, 7.896367577, 8.894135286, 9.877477877, 10.858688626, 11.851381753, 12.8477658, 13.868841284, 14.917554742, 16], False, 3, [1, 1, 1, 1, 1, 1, 1, 1, 1, 1, 1, 1, 1, 1, 1, 1, 1, 1, 1], False),  # 58
    Part.BSplineCurve([V(5.85423, -6.1859, 0), V(5.853627, -6.211774, 0), V(5.852429, -6.263171, 0), V(5.846334, -6.339502, 0), V(5.834599, -6.414217, 0), V(5.818844, -6.487326, 0), V(5.798395, -6.55869, 0), V(5.77364, -6.628514, 0), V(5.743345, -6.696364, 0), V(5.710115, -6.76288, 0), V(5.672699, -6.82656, 0), V(5.631171, -6.886113, 0), V(5.587297, -6.942433, 0), V(5.540088, -6.994914, 0), V(5.489105, -7.043213, 0), V(5.434967, -7.087616, 0), V(5.378105, -7.128875, 0), V(5.317639, -7.165313, 0), V(5.254917, -7.198843, 0), V(5.189033, -7.226351, 0), V(5.121486, -7.250944, 0), V(5.051305, -7.270547, 0), V(4.978649, -7.285908, 0), V(4.903397, -7.29634, 0), V(4.825945, -7.303939, 0), V(4.773444, -7.304415, 0), V(4.746924, -7.304655, 0)], [4, 1, 1, 1, 1, 1, 1, 1, 1, 1, 1, 1, 1, 1, 1, 1, 1, 1, 1, 1, 1, 1, 1, 1, 4], [0, 1.056347294, 2.098418968, 3.122841568, 4.141288669, 5.149314143, 6.15115421, 7.162517403, 8.180376062, 9.185164535, 10.17417709, 11.141909838, 12.097768115, 13.052685741, 14.0056014, 14.954263652, 15.917497458, 16.885230207, 17.854509472, 18.828990115, 19.81800267, 20.826176721, 21.857883937, 22.917946725, 24], False, 3, [1, 1, 1, 1, 1, 1, 1, 1, 1, 1, 1, 1, 1, 1, 1, 1, 1, 1, 1, 1, 1, 1, 1, 1, 1, 1, 1], False),  # 59
    Part.BSplineCurve([V(4.855047, -5.147283, 0), V(4.890501, -5.14805, 0), V(4.960214, -5.149559, 0), V(5.062212, -5.164048, 0), V(5.159578, -5.186854, 0), V(5.252109, -5.218713, 0), V(5.339975, -5.259452, 0), V(5.422369, -5.310343, 0), V(5.500526, -5.369791, 0), V(5.573046, -5.43814, 0), V(5.638836, -5.513362, 0), V(5.696681, -5.594241, 0), V(5.745814, -5.679991, 0), V(5.78533, -5.771431, 0), V(5.816884, -5.867551, 0), V(5.837886, -5.969362, 0), V(5.851871, -6.075904, 0), V(5.853434, -6.148752, 0), V(5.85423, -6.1859, 0)], [4, 1, 1, 1, 1, 1, 1, 1, 1, 1, 1, 1, 1, 1, 1, 1, 4], [0, 1.052922333, 2.070308379, 3.05430497, 4.020497103, 4.973039431, 5.925935799, 6.892292201, 7.88610001, 8.88166317, 9.857072816, 10.836096531, 11.812156883, 12.81219415, 13.836441305, 14.89672472, 16], False, 3, [1, 1, 1, 1, 1, 1, 1, 1, 1, 1, 1, 1, 1, 1, 1, 1, 1, 1, 1], False),  # 60
    Part.BSplineCurve([V(4.481068, -5.208977, 0), V(4.514683, -5.199696, 0), V(4.579807, -5.181717, 0), V(4.675928, -5.161755, 0), V(4.767179, -5.149721, 0), V(4.826393, -5.148078, 0), V(4.855047, -5.147283, 0)], [4, 1, 1, 1, 4], [0, 1.100273476, 2.13160584, 3.095893838, 4], False, 3, [1, 1, 1, 1, 1, 1, 1], False),  # 61
    Part.LineSegment(V(4.481068, -5.208977, 0), V(4.652157, -4.373886, 0)),  # 62
    Part.LineSegment(V(4.652157, -4.373886, 0), V(5.732115, -4.373886, 0)),  # 63
], False)
sketch5.addConstraint([
    Sketcher.Constraint("Block", 1),
    Sketcher.Constraint("Block", 2),
    Sketcher.Constraint("Block", 3),
    Sketcher.Constraint("Block", 4),
    Sketcher.Constraint("Block", 5),
    Sketcher.Constraint("Block", 6),
    Sketcher.Constraint("Block", 7),
    Sketcher.Constraint("Block", 9),
    Sketcher.Constraint("Block", 10),
    Sketcher.Constraint("Block", 11),
    Sketcher.Constraint("Block", 12),
    Sketcher.Constraint("Block", 13),
    Sketcher.Constraint("Block", 14),
    Sketcher.Constraint("Block", 15),
    Sketcher.Constraint("Block", 16),
    Sketcher.Constraint("Block", 53),
    Sketcher.Constraint("Block", 54),
    Sketcher.Constraint("Block", 55),
    Sketcher.Constraint("Block", 56),
    Sketcher.Constraint("Block", 58),
    Sketcher.Constraint("Block", 59),
    Sketcher.Constraint("Block", 60),
    Sketcher.Constraint("Block", 61),
    Sketcher.Constraint("Coincident", 0, 2, 1, 2),
    Sketcher.Constraint("Coincident", 7, 1, 8, 1),
    Sketcher.Constraint("Coincident", 8, 2, 9, 2),
    Sketcher.Constraint("Coincident", 16, 1, 0, 1),
    Sketcher.Constraint("Coincident", 17, 2, 18, 1),
    Sketcher.Constraint("Coincident", 18, 2, 19, 1),
    Sketcher.Constraint("Coincident", 19, 2, 20, 1),
    Sketcher.Constraint("Coincident", 20, 2, 21, 1),
    Sketcher.Constraint("Coincident", 21, 2, 22, 1),
    Sketcher.Constraint("Coincident", 22, 2, 23, 1),
    Sketcher.Constraint("Coincident", 23, 2, 24, 1),
    Sketcher.Constraint("Coincident", 24, 2, 25, 1),
    Sketcher.Constraint("Coincident", 25, 2, 26, 1),
    Sketcher.Constraint("Coincident", 26, 2, 27, 1),
    Sketcher.Constraint("Coincident", 27, 2, 28, 1),
    Sketcher.Constraint("Coincident", 28, 2, 17, 1),
    Sketcher.Constraint("Coincident", 29, 2, 30, 1),
    Sketcher.Constraint("Coincident", 30, 2, 31, 1),
    Sketcher.Constraint("Coincident", 31, 2, 32, 1),
    Sketcher.Constraint("Coincident", 32, 2, 33, 1),
    Sketcher.Constraint("Coincident", 33, 2, 34, 1),
    Sketcher.Constraint("Coincident", 34, 2, 35, 1),
    Sketcher.Constraint("Coincident", 35, 2, 36, 1),
    Sketcher.Constraint("Coincident", 36, 2, 29, 1),
    Sketcher.Constraint("Coincident", 37, 2, 38, 1),
    Sketcher.Constraint("Coincident", 38, 2, 39, 1),
    Sketcher.Constraint("Coincident", 39, 2, 40, 1),
    Sketcher.Constraint("Coincident", 40, 2, 41, 1),
    Sketcher.Constraint("Coincident", 41, 2, 42, 1),
    Sketcher.Constraint("Coincident", 42, 2, 43, 1),
    Sketcher.Constraint("Coincident", 43, 2, 44, 1),
    Sketcher.Constraint("Coincident", 44, 2, 45, 1),
    Sketcher.Constraint("Coincident", 45, 2, 46, 1),
    Sketcher.Constraint("Coincident", 46, 2, 37, 1),
    Sketcher.Constraint("Coincident", 47, 2, 48, 1),
    Sketcher.Constraint("Coincident", 48, 2, 49, 1),
    Sketcher.Constraint("Coincident", 49, 2, 47, 1),
    Sketcher.Constraint("Coincident", 50, 2, 51, 1),
    Sketcher.Constraint("Coincident", 51, 2, 52, 1),
    Sketcher.Constraint("Coincident", 52, 2, 53, 2),
    Sketcher.Constraint("Coincident", 56, 1, 57, 1),
    Sketcher.Constraint("Coincident", 57, 2, 58, 2),
    Sketcher.Constraint("Coincident", 61, 1, 62, 1),
    Sketcher.Constraint("Coincident", 62, 2, 63, 1),
    Sketcher.Constraint("Coincident", 63, 2, 50, 1),
    Sketcher.Constraint("Horizontal", 17),
    Sketcher.Constraint("Vertical", 18),
    Sketcher.Constraint("Horizontal", 19),
    Sketcher.Constraint("Vertical", 20),
    Sketcher.Constraint("Horizontal", 21),
    Sketcher.Constraint("Vertical", 22),
    Sketcher.Constraint("Horizontal", 23),
    Sketcher.Constraint("Vertical", 24),
    Sketcher.Constraint("Horizontal", 25),
    Sketcher.Constraint("Vertical", 26),
    Sketcher.Constraint("Horizontal", 27),
    Sketcher.Constraint("Vertical", 28),
    Sketcher.Constraint("Vertical", 29),
    Sketcher.Constraint("Horizontal", 30),
    Sketcher.Constraint("Vertical", 31),
    Sketcher.Constraint("Horizontal", 32),
    Sketcher.Constraint("Vertical", 33),
    Sketcher.Constraint("Horizontal", 34),
    Sketcher.Constraint("Vertical", 35),
    Sketcher.Constraint("Horizontal", 36),
    Sketcher.Constraint("Horizontal", 37),
    Sketcher.Constraint("Horizontal", 39),
    Sketcher.Constraint("Vertical", 40),
    Sketcher.Constraint("Horizontal", 41),
    Sketcher.Constraint("Vertical", 42),
    Sketcher.Constraint("Horizontal", 43),
    Sketcher.Constraint("Vertical", 44),
    Sketcher.Constraint("Horizontal", 45),
    Sketcher.Constraint("Vertical", 46),
    Sketcher.Constraint("Horizontal", 47),
    Sketcher.Constraint("Vertical", 49),
    Sketcher.Constraint("Vertical", 50),
    Sketcher.Constraint("Horizontal", 51),
    Sketcher.Constraint("Horizontal", 63),
    Sketcher.Constraint("DistanceY", 18, 2, 18, 1, Q("0.125 in")),
    Sketcher.Constraint("DistanceY", 24, 1, 24, 2, Q("0.125 in")),
    Sketcher.Constraint("DistanceY", 22, 2, 17, 2, Q("0.125 in")),
    Sketcher.Constraint("DistanceX", 36, 2, 36, 1, Q("1.66891 mm")),
    Sketcher.Constraint("DistanceX", 39, 1, 39, 2, Q("1.50609 mm")),
    Sketcher.Constraint("DistanceY", 29, 2, 29, 1, Q("0.325641 mm")),
    Sketcher.Constraint("DistanceY", 31, 2, 31, 1, Q("2.849359 mm")),
    Sketcher.Constraint("DistanceY", 33, 1, 33, 2, Q("2.849359 mm")),
    Sketcher.Constraint("DistanceY", 44, 1, 44, 2, Q("0.325641 mm")),
    Sketcher.Constraint("DistanceY", 50, 1, 50, 2, Q("0.325641 mm")),
    Sketcher.Constraint("Distance", 38, Q("3.061528 mm")),
    Sketcher.Constraint("Distance", 48, Q("1.67242 mm")),
    Sketcher.Constraint("DistanceX", 17, 2, 17, 1, Q("0.284936 mm")),
    Sketcher.Constraint("DistanceX", 19, 1, 19, 2, Q("0.284936 mm")),
    Sketcher.Constraint("DistanceX", 21, 1, 21, 2, Q("1.628205 mm")),
    Sketcher.Constraint("DistanceX", 23, 1, 23, 2, Q("0.284936 mm")),
    Sketcher.Constraint("DistanceX", 25, 2, 25, 1, Q("0.284936 mm")),
    Sketcher.Constraint("DistanceX", 30, 1, 30, 2, Q("0.691987 mm")),
    Sketcher.Constraint("DistanceX", 32, 1, 32, 2, Q("0.284936 mm")),
    Sketcher.Constraint("DistanceX", 37, 2, 37, 1, Q("0.057878 mm")),
    Sketcher.Constraint("DistanceX", 41, 1, 41, 2, Q("0.284936 mm")),
    Sketcher.Constraint("DistanceX", 43, 1, 43, 2, Q("0.366346 mm")),
    Sketcher.Constraint("DistanceX", 45, 2, 45, 1, Q("0.366346 mm")),
    Sketcher.Constraint("DistanceX", 47, 2, 47, 1, Q("0.946394 mm")),
    Sketcher.Constraint("DistanceX", 51, 2, 51, 1, Q("1.302564 mm")),
    Sketcher.Constraint("DistanceX", 63, 1, 63, 2, Q("1.079958 mm")),
    Sketcher.Constraint("DistanceY", 20, 1, 20, 2, Q("1.546795 mm")),
    Sketcher.Constraint("DistanceY", 26, 2, 26, 1, Q("1.302564 mm")),
    Sketcher.Constraint("DistanceY", 40, 2, 40, 1, Q("0.732692 mm")),
    Sketcher.Constraint("DistanceY", 42, 1, 42, 2, Q("0.732692 mm")),
    Sketcher.Constraint("DistanceY", 20, 2, -1, 1, Q("5.67645 mm")),
    Sketcher.Constraint("DistanceX", 29, 2, -1, 1, Q("0.57718 mm")),
    Sketcher.Constraint("DistanceX", -1, 1, 41, 2, Q("3.086282 mm")),
    Sketcher.Constraint("DistanceY", 44, 2, -1, 1, Q("6.164911 mm")),
    Sketcher.Constraint("DistanceX", -1, 1, 47, 2, Q("1.854952 mm")),
    Sketcher.Constraint("DistanceY", 47, 2, -1, 1, Q("6.164911 mm")),
    Sketcher.Constraint("DistanceX", -1, 1, 51, 2, Q("4.429551 mm")),
    Sketcher.Constraint("DistanceX", 8, 2, 21, 2, Q("2.605128 mm")),
    Sketcher.Constraint("DistanceY", 29, 2, 24, 2, Q("0.325641 mm")),
    Sketcher.Constraint("DistanceY", 50, 2, 46, 2, Q("0.08141 mm")),
])
pocket3 = body.newObject("PartDesign::Pocket", "Pocket002")
pocket3.Profile = sketch5
pocket3.Length = Q("0.001 in")

doc.recompute()
